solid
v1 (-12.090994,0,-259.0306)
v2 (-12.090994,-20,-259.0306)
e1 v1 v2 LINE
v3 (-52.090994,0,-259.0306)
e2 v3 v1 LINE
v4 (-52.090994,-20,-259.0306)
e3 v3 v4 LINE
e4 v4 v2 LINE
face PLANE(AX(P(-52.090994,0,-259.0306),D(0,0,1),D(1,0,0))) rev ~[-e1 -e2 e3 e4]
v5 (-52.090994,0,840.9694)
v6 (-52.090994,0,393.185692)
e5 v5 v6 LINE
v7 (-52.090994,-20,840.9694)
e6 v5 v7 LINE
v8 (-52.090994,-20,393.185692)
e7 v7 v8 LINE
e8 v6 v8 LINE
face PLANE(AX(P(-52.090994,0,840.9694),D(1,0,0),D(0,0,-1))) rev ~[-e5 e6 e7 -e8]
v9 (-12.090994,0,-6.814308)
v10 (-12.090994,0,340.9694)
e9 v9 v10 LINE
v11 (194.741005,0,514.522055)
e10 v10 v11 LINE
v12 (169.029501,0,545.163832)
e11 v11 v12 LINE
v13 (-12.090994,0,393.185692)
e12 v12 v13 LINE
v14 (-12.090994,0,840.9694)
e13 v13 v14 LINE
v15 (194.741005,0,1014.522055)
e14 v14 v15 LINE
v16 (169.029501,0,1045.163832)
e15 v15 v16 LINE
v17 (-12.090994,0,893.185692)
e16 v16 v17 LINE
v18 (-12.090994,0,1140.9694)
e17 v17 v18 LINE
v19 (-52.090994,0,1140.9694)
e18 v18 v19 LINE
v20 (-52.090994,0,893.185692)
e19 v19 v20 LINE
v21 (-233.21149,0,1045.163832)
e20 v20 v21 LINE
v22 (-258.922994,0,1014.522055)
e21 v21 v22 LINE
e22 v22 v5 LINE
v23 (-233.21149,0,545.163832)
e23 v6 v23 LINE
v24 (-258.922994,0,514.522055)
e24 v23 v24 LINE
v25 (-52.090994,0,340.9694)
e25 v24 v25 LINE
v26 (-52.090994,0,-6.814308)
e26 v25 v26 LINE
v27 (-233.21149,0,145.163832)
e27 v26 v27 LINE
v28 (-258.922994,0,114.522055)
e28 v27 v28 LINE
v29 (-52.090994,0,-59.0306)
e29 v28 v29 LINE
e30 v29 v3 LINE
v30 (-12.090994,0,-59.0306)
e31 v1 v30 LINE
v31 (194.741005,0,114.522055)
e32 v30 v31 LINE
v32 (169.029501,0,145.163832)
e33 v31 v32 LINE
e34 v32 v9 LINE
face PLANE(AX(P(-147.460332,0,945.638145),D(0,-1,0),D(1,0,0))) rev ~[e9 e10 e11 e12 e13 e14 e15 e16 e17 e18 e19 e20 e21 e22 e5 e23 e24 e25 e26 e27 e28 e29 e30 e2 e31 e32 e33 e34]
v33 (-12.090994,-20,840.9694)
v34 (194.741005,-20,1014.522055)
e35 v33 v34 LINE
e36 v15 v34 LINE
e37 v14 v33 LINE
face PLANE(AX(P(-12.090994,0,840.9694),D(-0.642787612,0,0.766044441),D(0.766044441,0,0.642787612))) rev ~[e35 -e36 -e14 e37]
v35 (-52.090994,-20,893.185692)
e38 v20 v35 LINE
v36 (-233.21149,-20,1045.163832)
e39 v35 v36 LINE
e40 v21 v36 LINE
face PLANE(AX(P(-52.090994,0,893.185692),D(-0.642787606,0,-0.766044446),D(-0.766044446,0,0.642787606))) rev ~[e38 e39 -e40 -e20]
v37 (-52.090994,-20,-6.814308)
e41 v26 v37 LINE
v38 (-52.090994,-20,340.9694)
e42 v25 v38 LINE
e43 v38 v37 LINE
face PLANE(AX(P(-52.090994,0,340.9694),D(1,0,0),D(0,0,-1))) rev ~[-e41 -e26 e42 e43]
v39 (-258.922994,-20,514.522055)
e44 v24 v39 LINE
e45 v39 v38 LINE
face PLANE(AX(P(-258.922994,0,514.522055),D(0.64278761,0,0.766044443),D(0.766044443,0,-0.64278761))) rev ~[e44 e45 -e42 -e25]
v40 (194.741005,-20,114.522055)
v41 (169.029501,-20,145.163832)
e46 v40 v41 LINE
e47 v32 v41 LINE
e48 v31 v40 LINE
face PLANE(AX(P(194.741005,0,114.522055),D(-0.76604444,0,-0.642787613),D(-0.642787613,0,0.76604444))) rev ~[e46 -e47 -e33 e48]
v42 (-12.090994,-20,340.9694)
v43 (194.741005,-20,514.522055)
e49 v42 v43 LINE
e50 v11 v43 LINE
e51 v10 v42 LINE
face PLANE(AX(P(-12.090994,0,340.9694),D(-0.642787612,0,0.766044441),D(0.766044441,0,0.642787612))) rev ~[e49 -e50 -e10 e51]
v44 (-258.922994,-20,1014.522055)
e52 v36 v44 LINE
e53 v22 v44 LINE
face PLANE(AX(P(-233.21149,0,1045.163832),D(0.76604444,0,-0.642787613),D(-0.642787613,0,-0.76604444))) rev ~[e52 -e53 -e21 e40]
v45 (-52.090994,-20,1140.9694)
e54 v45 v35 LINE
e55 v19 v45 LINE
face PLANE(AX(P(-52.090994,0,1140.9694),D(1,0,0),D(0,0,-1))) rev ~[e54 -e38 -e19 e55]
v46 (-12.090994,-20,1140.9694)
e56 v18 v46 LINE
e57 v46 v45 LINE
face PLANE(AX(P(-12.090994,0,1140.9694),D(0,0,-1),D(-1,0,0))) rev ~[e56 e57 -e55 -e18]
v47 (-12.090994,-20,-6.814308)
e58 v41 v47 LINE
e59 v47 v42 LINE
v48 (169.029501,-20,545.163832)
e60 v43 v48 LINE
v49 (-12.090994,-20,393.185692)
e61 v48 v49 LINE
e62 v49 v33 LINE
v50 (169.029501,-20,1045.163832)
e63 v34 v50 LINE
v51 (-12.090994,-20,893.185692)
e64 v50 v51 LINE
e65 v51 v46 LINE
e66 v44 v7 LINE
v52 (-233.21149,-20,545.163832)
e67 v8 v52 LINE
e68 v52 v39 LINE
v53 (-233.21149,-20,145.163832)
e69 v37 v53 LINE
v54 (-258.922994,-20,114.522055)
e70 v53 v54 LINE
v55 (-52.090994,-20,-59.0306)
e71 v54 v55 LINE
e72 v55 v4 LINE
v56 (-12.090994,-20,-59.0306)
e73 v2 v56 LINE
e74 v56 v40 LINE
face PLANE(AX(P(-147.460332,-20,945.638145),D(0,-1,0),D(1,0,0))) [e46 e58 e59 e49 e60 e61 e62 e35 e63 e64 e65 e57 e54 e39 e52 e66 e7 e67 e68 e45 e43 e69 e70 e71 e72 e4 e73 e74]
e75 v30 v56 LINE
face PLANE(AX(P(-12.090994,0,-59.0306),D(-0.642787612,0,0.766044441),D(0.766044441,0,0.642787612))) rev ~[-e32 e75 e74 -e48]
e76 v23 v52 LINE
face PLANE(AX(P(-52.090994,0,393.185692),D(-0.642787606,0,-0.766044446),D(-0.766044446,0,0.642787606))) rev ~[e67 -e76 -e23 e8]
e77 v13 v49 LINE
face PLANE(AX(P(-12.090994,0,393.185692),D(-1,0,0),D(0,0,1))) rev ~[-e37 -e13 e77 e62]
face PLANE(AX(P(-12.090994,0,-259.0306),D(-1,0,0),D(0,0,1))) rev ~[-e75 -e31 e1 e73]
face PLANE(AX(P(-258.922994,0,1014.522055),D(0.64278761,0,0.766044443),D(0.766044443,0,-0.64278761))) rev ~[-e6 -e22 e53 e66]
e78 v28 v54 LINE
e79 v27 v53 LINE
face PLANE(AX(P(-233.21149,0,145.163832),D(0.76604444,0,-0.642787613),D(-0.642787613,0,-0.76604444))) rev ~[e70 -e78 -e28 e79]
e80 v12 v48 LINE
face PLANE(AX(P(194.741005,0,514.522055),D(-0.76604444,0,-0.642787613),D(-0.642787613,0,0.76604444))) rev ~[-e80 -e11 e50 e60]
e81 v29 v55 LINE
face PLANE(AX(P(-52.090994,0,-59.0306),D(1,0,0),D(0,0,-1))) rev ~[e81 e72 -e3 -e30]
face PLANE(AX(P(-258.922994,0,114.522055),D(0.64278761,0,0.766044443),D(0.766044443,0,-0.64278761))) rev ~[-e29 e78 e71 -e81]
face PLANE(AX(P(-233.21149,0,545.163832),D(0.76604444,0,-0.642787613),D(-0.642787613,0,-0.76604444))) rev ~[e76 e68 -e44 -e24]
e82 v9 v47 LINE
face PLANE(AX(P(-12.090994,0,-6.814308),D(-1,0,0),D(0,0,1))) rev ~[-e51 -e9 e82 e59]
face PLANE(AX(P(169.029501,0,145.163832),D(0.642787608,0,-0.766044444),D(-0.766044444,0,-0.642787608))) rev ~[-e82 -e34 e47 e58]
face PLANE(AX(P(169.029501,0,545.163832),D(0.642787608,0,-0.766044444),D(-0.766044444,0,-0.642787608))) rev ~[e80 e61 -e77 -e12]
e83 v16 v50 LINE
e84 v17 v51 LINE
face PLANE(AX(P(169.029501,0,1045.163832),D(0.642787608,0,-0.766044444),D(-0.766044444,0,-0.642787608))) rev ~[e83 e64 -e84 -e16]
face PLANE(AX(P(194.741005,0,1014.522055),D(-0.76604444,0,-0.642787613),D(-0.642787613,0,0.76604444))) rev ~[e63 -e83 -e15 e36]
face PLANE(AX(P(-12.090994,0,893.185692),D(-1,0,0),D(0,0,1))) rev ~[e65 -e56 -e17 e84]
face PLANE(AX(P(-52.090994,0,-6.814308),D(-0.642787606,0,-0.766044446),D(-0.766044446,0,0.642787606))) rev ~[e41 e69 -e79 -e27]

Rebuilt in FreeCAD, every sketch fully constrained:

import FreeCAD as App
import Part
import Sketcher
from FreeCAD import Vector
Q = App.Units.Quantity


def add_polygon(sketch, points):
    """Adds a closed chain of lines whose ends are joined by coincident constraints."""
    first, n = sketch.GeometryCount, len(points)
    for a, b in zip(points, points[1:] + points[:1]):
        sketch.addGeometry(Part.LineSegment(App.Vector(*a, 0), App.Vector(*b, 0)), False)
    for i in range(n):
        sketch.addConstraint(Sketcher.Constraint("Coincident", first + i, 2, first + (i + 1) % n, 1))

doc = App.newDocument("Part")
body = doc.addObject("PartDesign::Body", "Body")

# Sketch on XZ plane
sketch1 = body.newObject("Sketcher::SketchObject", "Sketch")
sketch1.AttachmentSupport = (doc.getObject("XZ_Plane"), [""])
sketch1.MapMode = "FlatFace"
add_polygon(sketch1, [(-52, 893), (-233, 1045), (-259, 1015), (-52, 841), (-52, 393), (-233, 545), (-259, 515), (-52, 341), (-52, -7), (-233, 145), (-259, 115), (-52, -59), (-52, -259), (-12, -259), (-12, -59), (195, 115), (169, 145), (-12, -7), (-12, 341), (195, 515), (169, 545), (-12, 393), (-12, 841), (195, 1015), (169, 1045), (-12, 893), (-12, 1141), (-52, 1141)])  # lines 0-27
sketch1.addConstraint([
    Sketcher.Constraint("Vertical", 3),
    Sketcher.Constraint("Vertical", 7),
    Sketcher.Constraint("Vertical", 11),
    Sketcher.Constraint("Horizontal", 12),
    Sketcher.Constraint("Vertical", 13),
    Sketcher.Constraint("Vertical", 17),
    Sketcher.Constraint("Vertical", 21),
    Sketcher.Constraint("Vertical", 25),
    Sketcher.Constraint("Horizontal", 26),
    Sketcher.Constraint("Vertical", 27),
    Sketcher.Constraint("Perpendicular", 0, 1),
    Sketcher.Constraint("Perpendicular", 1, 2),
    Sketcher.Constraint("Parallel", 2, 4),
    Sketcher.Constraint("Perpendicular", 4, 5),
    Sketcher.Constraint("Perpendicular", 5, 6),
    Sketcher.Constraint("Parallel", 6, 8),
    Sketcher.Constraint("Perpendicular", 8, 9),
    Sketcher.Constraint("Perpendicular", 9, 10),
    Sketcher.Constraint("Perpendicular", 14, 15),
    Sketcher.Constraint("Perpendicular", 15, 16),
    Sketcher.Constraint("Parallel", 16, 18),
    Sketcher.Constraint("Perpendicular", 18, 19),
    Sketcher.Constraint("Perpendicular", 19, 20),
    Sketcher.Constraint("Parallel", 20, 22),
    Sketcher.Constraint("Perpendicular", 22, 23),
    Sketcher.Constraint("Perpendicular", 23, 24),
    Sketcher.Constraint("Horizontal", 10, 2, 13, 2),
    Sketcher.Constraint("Horizontal", 9, 2, 14, 2),
    Sketcher.Constraint("Horizontal", 8, 2, 15, 2),
    Sketcher.Constraint("Horizontal", 7, 2, 16, 2),
    Sketcher.Constraint("Horizontal", 6, 2, 17, 2),
    Sketcher.Constraint("Horizontal", 5, 2, 18, 2),
    Sketcher.Constraint("Horizontal", 4, 2, 19, 2),
    Sketcher.Constraint("Horizontal", 3, 2, 20, 2),
    Sketcher.Constraint("Horizontal", 2, 2, 21, 2),
    Sketcher.Constraint("Horizontal", 1, 2, 22, 2),
    Sketcher.Constraint("Horizontal", 0, 2, 23, 2),
    Sketcher.Constraint("Horizontal", 24, 2, 27, 2),
    Sketcher.Constraint("Vertical", 0, 2, 4, 2),
    Sketcher.Constraint("Vertical", 1, 2, 5, 2),
    Sketcher.Constraint("Vertical", 3, 2, 6, 2),
    Sketcher.Constraint("Vertical", 4, 2, 8, 2),
    Sketcher.Constraint("Vertical", 5, 2, 9, 2),
    Sketcher.Constraint("Vertical", 7, 2, 10, 2),
    Sketcher.Constraint("Vertical", 13, 2, 16, 2),
    Sketcher.Constraint("Vertical", 21, 2, 24, 2),
    Sketcher.Constraint("DistanceX", 12, 1, 12, 2, 40.0),
    Sketcher.Constraint("DistanceY", 11, 2, 11, 1, 200.0),
    Sketcher.Constraint("Angle", 0, Q("140 deg")),
    Sketcher.Constraint("Distance", 1, 39.999999),
    Sketcher.Constraint("Distance", 2, 270.000001),
    Sketcher.Constraint("DistanceY", 4, 2, 0, 2, 500.0),
    Sketcher.Constraint("DistanceY", 7, 2, 3, 2, 400.0),
    Sketcher.Constraint("DistanceY", -1, 1, 2, 2, 840.9694),
    Sketcher.Constraint("DistanceX", -1, 1, 15, 2, 169.029501),
    Sketcher.Constraint("DistanceY", -1, 1, 25, 2, 1140.9694),
])
pad1 = body.newObject("PartDesign::Pad", "Pad")
pad1.Profile = sketch1
pad1.Length = 20

doc.recompute()
